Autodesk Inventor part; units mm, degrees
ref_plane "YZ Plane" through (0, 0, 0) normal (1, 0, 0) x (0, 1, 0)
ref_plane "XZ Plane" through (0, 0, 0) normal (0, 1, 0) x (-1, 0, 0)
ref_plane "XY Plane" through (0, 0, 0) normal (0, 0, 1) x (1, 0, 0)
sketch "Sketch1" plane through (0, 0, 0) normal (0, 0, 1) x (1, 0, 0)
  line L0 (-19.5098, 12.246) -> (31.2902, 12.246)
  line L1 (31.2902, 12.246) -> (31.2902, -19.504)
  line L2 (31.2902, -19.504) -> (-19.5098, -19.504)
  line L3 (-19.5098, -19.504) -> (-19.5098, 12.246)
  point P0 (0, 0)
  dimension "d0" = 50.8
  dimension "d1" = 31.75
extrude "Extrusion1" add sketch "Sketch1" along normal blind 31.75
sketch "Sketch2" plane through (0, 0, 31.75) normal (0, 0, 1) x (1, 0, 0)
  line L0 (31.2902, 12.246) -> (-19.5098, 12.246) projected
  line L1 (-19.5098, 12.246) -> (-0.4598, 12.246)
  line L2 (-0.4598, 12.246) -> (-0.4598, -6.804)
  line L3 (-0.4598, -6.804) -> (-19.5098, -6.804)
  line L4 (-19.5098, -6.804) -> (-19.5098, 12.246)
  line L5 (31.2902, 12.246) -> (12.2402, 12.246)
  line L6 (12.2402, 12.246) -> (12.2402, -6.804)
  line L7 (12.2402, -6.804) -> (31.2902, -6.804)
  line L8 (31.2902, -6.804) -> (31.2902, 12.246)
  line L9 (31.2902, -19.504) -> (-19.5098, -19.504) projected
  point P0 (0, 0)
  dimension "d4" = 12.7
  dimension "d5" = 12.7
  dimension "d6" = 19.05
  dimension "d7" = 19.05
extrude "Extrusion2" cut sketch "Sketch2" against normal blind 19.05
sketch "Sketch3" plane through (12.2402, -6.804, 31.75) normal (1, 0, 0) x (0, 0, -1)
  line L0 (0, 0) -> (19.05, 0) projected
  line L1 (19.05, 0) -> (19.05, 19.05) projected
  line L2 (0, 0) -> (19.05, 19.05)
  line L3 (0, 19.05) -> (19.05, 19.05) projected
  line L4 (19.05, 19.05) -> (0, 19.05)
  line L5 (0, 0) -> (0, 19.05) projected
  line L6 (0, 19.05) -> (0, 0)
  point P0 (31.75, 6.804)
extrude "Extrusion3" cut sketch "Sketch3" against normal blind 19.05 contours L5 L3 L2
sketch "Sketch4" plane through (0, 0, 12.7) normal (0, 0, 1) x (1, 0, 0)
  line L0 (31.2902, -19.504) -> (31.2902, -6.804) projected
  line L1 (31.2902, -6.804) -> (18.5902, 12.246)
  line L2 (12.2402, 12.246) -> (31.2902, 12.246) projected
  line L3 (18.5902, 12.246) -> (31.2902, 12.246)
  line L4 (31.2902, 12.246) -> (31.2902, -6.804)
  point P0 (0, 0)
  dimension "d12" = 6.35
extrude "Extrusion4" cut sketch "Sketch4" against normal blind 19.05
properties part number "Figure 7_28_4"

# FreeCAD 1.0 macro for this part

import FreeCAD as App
import Part
import Sketcher
from FreeCAD import Vector
Q = App.Units.Quantity

doc = App.newDocument("Part")
params = doc.addObject("Spreadsheet::Sheet", "Params")
for row, (alias, value) in enumerate([
    ("sketch1_width", "2 in"),
    ("sketch1_height", "1.25 in"),
    ("pad1_length", "1.25 in"),
    ("sketch2_width", "0.75 in"),
    ("pocket1_length", "0.75 in"),
    ("sketch3_width", "0.75 in"),
    ("pocket2_length", "0.75 in"),
    ("sketch4_width", "0.5 in"),
    ("sketch4_height", "0.75 in"),
    ("pocket3_length", "0.75 in"),
], start=1):
    params.set(f"A{row}", alias)
    params.set(f"B{row}", "=" + value)
    params.setAlias(f"B{row}", alias)

body = doc.addObject("PartDesign::Body", "Body")

# Sketch on XY plane
sketch1 = body.newObject("Sketcher::SketchObject", "Sketch")
sketch1.AttachmentSupport = (doc.getObject("XY_Plane"), [""])
sketch1.MapMode = "FlatFace"
sketch1.addGeometry([
    Part.LineSegment(Vector(31, 12, 0), Vector(-20, 12, 0)),
    Part.LineSegment(Vector(-20, 12, 0), Vector(-20, -20, 0)),
    Part.LineSegment(Vector(-20, -20, 0), Vector(31, -20, 0)),
    Part.LineSegment(Vector(31, -20, 0), Vector(31, 12, 0)),
], False)
sketch1.addConstraint([
    Sketcher.Constraint("Coincident", 0, 2, 1, 1),
    Sketcher.Constraint("Coincident", 1, 2, 2, 1),
    Sketcher.Constraint("Coincident", 2, 2, 3, 1),
    Sketcher.Constraint("Coincident", 3, 2, 0, 1),
    Sketcher.Constraint("Horizontal", 0),
    Sketcher.Constraint("Vertical", 1),
    Sketcher.Constraint("Horizontal", 2),
    Sketcher.Constraint("Vertical", 3),
    Sketcher.Constraint("DistanceX", 0, 2, 0, 1, Q("2 in")),
    Sketcher.Constraint("DistanceY", 1, 2, 1, 1, Q("1.25 in")),
    Sketcher.Constraint("DistanceX", 0, 2, -1, 1, Q("0.7681 in")),
    Sketcher.Constraint("DistanceY", -1, 1, 0, 2, 12.246),
])
sketch1.setExpression("Constraints[8]", "Params.sketch1_width")
sketch1.setExpression("Constraints[9]", "Params.sketch1_height")
pad1 = body.newObject("PartDesign::Pad", "Pad")
pad1.Profile = sketch1
pad1.setExpression("Length", "Params.pad1_length")

# Sketch on XY plane
sketch2 = body.newObject("Sketcher::SketchObject", "Sketch001")
sketch2.AttachmentSupport = (doc.getObject("XY_Plane"), [""])
sketch2.MapMode = "FlatFace"
sketch2.AttachmentOffset = App.Placement(Vector(0, 0, 1.25 * 25.4), App.Rotation())
sketch2.addGeometry([
    Part.LineSegment(Vector(31, -7, 0), Vector(31, 12, 0)),  # 0
    Part.LineSegment(Vector(31, 12, 0), Vector(12, 12, 0)),  # 1
    Part.LineSegment(Vector(12, 12, 0), Vector(12, -7, 0)),  # 2
    Part.LineSegment(Vector(12, -7, 0), Vector(31, -7, 0)),  # 3
    Part.LineSegment(Vector(0, -7, 0), Vector(0, 12, 0)),  # 4
    Part.LineSegment(Vector(0, 12, 0), Vector(-20, 12, 0)),  # 5
    Part.LineSegment(Vector(-20, 12, 0), Vector(-20, -7, 0)),  # 6
    Part.LineSegment(Vector(-20, -7, 0), Vector(0, -7, 0)),  # 7
], False)
sketch2.addConstraint([
    Sketcher.Constraint("Coincident", 0, 2, 1, 1),
    Sketcher.Constraint("Coincident", 1, 2, 2, 1),
    Sketcher.Constraint("Coincident", 2, 2, 3, 1),
    Sketcher.Constraint("Coincident", 3, 2, 0, 1),
    Sketcher.Constraint("Coincident", 4, 2, 5, 1),
    Sketcher.Constraint("Coincident", 5, 2, 6, 1),
    Sketcher.Constraint("Coincident", 6, 2, 7, 1),
    Sketcher.Constraint("Coincident", 7, 2, 4, 1),
    Sketcher.Constraint("Vertical", 0),
    Sketcher.Constraint("Horizontal", 1),
    Sketcher.Constraint("Vertical", 2),
    Sketcher.Constraint("Horizontal", 3),
    Sketcher.Constraint("Vertical", 4),
    Sketcher.Constraint("Horizontal", 5),
    Sketcher.Constraint("Vertical", 6),
    Sketcher.Constraint("Horizontal", 7),
    Sketcher.Constraint("Horizontal", 1, 2, 4, 2),
    Sketcher.Constraint("Horizontal", 3, 2, 6, 2),
    Sketcher.Constraint("Equal", 3, 5),
    Sketcher.Constraint("Equal", 7, 0),
    Sketcher.Constraint("DistanceX", 1, 2, 1, 1, Q("0.75 in")),
    Sketcher.Constraint("DistanceX", 4, 2, 1, 2, Q("0.5 in")),
    Sketcher.Constraint("DistanceX", -1, 1, 0, 2, Q("1.2319 in")),
    Sketcher.Constraint("DistanceY", -1, 1, 0, 2, 12.246),
])
sketch2.setExpression("Constraints[20]", "Params.sketch2_width")
pocket1 = body.newObject("PartDesign::Pocket", "Pocket")
pocket1.Profile = sketch2
pocket1.setExpression("Length", "Params.pocket1_length")

# Sketch on YZ plane
sketch3 = body.newObject("Sketcher::SketchObject", "Sketch002")
sketch3.AttachmentSupport = (doc.getObject("YZ_Plane"), [""])
sketch3.MapMode = "FlatFace"
sketch3.AttachmentOffset = App.Placement(Vector(0, 0, 0.4818976 * 25.4), App.Rotation())
sketch3.addGeometry([
    Part.LineSegment(Vector(12, 32, 0), Vector(-7, 32, 0)),
    Part.LineSegment(Vector(-7, 32, 0), Vector(12, 13, 0)),
    Part.LineSegment(Vector(12, 13, 0), Vector(12, 32, 0)),
], False)
sketch3.addConstraint([
    Sketcher.Constraint("Coincident", 0, 2, 1, 1),
    Sketcher.Constraint("Coincident", 1, 2, 2, 1),
    Sketcher.Constraint("Coincident", 2, 2, 0, 1),
    Sketcher.Constraint("Horizontal", 0),
    Sketcher.Constraint("Vertical", 2),
    Sketcher.Constraint("Equal", 0, 2),
    Sketcher.Constraint("DistanceX", 0, 2, 0, 1, Q("0.75 in")),
    Sketcher.Constraint("DistanceY", -1, 1, 1, 2, Q("0.5 in")),
    Sketcher.Constraint("DistanceX", 0, 2, -1, 1, 6.804),
])
sketch3.setExpression("Constraints[6]", "Params.sketch3_width")
pocket2 = body.newObject("PartDesign::Pocket", "Pocket001")
pocket2.Profile = sketch3
pocket2.setExpression("Length", "Params.pocket2_length")

# Sketch on XY plane
sketch4 = body.newObject("Sketcher::SketchObject", "Sketch003")
sketch4.AttachmentSupport = (doc.getObject("XY_Plane"), [""])
sketch4.MapMode = "FlatFace"
sketch4.AttachmentOffset = App.Placement(Vector(0, 0, 0.5 * 25.4), App.Rotation())
sketch4.addGeometry([
    Part.LineSegment(Vector(19, 12, 0), Vector(31, -7, 0)),
    Part.LineSegment(Vector(31, -7, 0), Vector(31, 12, 0)),
    Part.LineSegment(Vector(31, 12, 0), Vector(19, 12, 0)),
], False)
sketch4.addConstraint([
    Sketcher.Constraint("Coincident", 0, 2, 1, 1),
    Sketcher.Constraint("Coincident", 1, 2, 2, 1),
    Sketcher.Constraint("Coincident", 2, 2, 0, 1),
    Sketcher.Constraint("Vertical", 1),
    Sketcher.Constraint("Horizontal", 2),
    Sketcher.Constraint("DistanceX", 2, 2, 2, 1, Q("0.5 in")),
    Sketcher.Constraint("DistanceY", 1, 1, 1, 2, Q("0.75 in")),
    Sketcher.Constraint("DistanceX", -1, 1, 0, 2, Q("1.2319 in")),
    Sketcher.Constraint("DistanceY", 0, 2, -1, 1, 6.804),
])
sketch4.setExpression("Constraints[5]", "Params.sketch4_width")
sketch4.setExpression("Constraints[6]", "Params.sketch4_height")
pocket3 = body.newObject("PartDesign::Pocket", "Pocket002")
pocket3.Profile = sketch4
pocket3.setExpression("Length", "Params.pocket3_length")

doc.recompute()
